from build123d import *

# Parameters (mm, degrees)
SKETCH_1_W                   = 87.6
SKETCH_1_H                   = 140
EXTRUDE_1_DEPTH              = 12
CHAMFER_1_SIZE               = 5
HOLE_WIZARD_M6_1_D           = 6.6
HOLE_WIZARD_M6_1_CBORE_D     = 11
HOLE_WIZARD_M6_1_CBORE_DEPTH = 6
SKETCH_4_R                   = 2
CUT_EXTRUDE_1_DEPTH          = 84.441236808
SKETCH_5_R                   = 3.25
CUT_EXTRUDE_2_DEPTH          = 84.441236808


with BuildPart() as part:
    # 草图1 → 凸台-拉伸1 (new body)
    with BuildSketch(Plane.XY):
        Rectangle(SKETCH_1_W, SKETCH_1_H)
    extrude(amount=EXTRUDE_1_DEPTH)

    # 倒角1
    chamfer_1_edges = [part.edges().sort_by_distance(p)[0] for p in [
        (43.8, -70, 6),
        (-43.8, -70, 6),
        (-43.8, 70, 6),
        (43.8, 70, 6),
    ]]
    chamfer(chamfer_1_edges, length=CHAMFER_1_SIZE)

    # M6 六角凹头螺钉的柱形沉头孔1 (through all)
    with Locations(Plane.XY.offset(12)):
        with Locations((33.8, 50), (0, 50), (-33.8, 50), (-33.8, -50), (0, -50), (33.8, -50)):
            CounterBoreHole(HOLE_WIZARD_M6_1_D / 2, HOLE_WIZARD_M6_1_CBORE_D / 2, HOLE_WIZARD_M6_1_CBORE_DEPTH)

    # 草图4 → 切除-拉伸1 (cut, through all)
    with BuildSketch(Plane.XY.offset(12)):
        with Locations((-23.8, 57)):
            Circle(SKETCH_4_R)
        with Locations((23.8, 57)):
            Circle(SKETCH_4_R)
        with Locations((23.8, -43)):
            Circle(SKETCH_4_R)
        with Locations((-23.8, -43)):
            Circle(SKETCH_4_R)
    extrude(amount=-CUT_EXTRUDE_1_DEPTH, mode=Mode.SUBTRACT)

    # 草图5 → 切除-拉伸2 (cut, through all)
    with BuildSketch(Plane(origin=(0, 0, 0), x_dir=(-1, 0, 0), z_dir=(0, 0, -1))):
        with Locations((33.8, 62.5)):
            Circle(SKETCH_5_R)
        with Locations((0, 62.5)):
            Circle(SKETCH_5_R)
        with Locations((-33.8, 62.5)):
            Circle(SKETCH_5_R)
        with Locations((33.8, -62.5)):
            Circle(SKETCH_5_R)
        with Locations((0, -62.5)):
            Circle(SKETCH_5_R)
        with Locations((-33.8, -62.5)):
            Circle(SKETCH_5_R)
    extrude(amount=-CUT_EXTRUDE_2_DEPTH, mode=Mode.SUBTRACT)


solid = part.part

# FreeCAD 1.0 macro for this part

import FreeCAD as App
import Part
import Sketcher

V = App.Vector


def edges_at(feature, points):
    """Names of the edges that pass closest to the given points."""
    edges = feature.Shape.Edges
    near = lambda p: min(range(len(edges)), key=lambda i: edges[i].distToShape(Part.Vertex(*p))[0])
    return sorted({f"Edge{near(p) + 1}" for p in points})

doc = App.newDocument("Part")
params = doc.addObject("Spreadsheet::Sheet", "Params")
for row, (alias, value) in enumerate([
    ("sketch1_height", "140 mm"),
    ("sketch1_width", "87.6 mm"),
    ("pad1_length", "12 mm"),
    ("chamfer_size", "5 mm"),
    ("sketch2_diameter", "6.6 mm"),
    ("hole_diameter", "6.6 mm"),
    ("hole_cbore_diameter", "11 mm"),
    ("hole_cbore_depth", "6 mm"),
    ("sketch3_diameter", "4 mm"),
    ("sketch4_diameter", "6.5 mm"),
], start=1):
    params.set(f"A{row}", alias)
    params.set(f"B{row}", "=" + value)
    params.setAlias(f"B{row}", alias)

body = doc.addObject("PartDesign::Body", "Body")

# Sketch on XY plane
sketch1 = body.newObject("Sketcher::SketchObject", "Sketch")
sketch1.AttachmentSupport = (doc.getObject("XY_Plane"), [""])
sketch1.MapMode = "FlatFace"
sketch1.addGeometry([
    Part.LineSegment(V(-44, 70, 0), V(-44, -70, 0)),
    Part.LineSegment(V(-44, -70, 0), V(44, -70, 0)),
    Part.LineSegment(V(44, -70, 0), V(44, 70, 0)),
    Part.LineSegment(V(44, 70, 0), V(-44, 70, 0)),
], False)
sketch1.addConstraint([
    Sketcher.Constraint("Coincident", 0, 2, 1, 1),
    Sketcher.Constraint("Coincident", 1, 2, 2, 1),
    Sketcher.Constraint("Coincident", 2, 2, 3, 1),
    Sketcher.Constraint("Coincident", 3, 2, 0, 1),
    Sketcher.Constraint("Vertical", 0),
    Sketcher.Constraint("Horizontal", 1),
    Sketcher.Constraint("Vertical", 2),
    Sketcher.Constraint("Horizontal", 3),
    Sketcher.Constraint("Symmetric", 0, 2, 2, 2, -1, 1),
    Sketcher.Constraint("DistanceY", 0, 2, 0, 1, 140.0),
    Sketcher.Constraint("DistanceX", 1, 1, 1, 2, 87.6),
])
sketch1.setExpression("Constraints[9]", "Params.sketch1_height")
sketch1.setExpression("Constraints[10]", "Params.sketch1_width")
pad1 = body.newObject("PartDesign::Pad", "Pad")
pad1.Profile = sketch1
pad1.setExpression("Length", "Params.pad1_length")
doc.recompute()

chamfer = body.newObject("PartDesign::Chamfer", "Chamfer")
chamfer.Base = (pad1, edges_at(pad1, [
    (43.8, -70, 6),
    (-43.8, -70, 6),
    (-43.8, 70, 6),
    (43.8, 70, 6),
]))
chamfer.setExpression("Size", "Params.chamfer_size")

# Sketch on XY plane
sketch2 = body.newObject("Sketcher::SketchObject", "Sketch001")
sketch2.AttachmentSupport = (doc.getObject("XY_Plane"), [""])
sketch2.MapMode = "FlatFace"
sketch2.AttachmentOffset = App.Placement(V(0, 0, 12), App.Rotation())
sketch2.addGeometry([
    Part.Circle(V(33.8, 50, 0), V(0, 0, 1), 3.3),  # 0
    Part.Circle(V(0, 50, 0), V(0, 0, 1), 3.3),  # 1
    Part.Circle(V(-33.8, 50, 0), V(0, 0, 1), 3.3),  # 2
    Part.Circle(V(-33.8, -50, 0), V(0, 0, 1), 3.3),  # 3
    Part.Circle(V(0, -50, 0), V(0, 0, 1), 3.3),  # 4
    Part.Circle(V(33.8, -50, 0), V(0, 0, 1), 3.3),  # 5
], False)
sketch2.addConstraint([
    Sketcher.Constraint("Equal", 0, 1),
    Sketcher.Constraint("Equal", 1, 2),
    Sketcher.Constraint("Equal", 2, 3),
    Sketcher.Constraint("Equal", 3, 4),
    Sketcher.Constraint("Equal", 4, 5),
    Sketcher.Constraint("Symmetric", 0, 3, 3, 3, -1, 1),
    Sketcher.Constraint("Symmetric", 1, 3, 4, 3, -1, 1),
    Sketcher.Constraint("Symmetric", 2, 3, 5, 3, -1, 1),
    Sketcher.Constraint("Symmetric", 0, 3, 2, 3, -2),
    Sketcher.Constraint("PointOnObject", 1, 3, -2),
    Sketcher.Constraint("Horizontal", 0, 3, 1, 3),
    Sketcher.Constraint("Diameter", 0, 6.6),
    Sketcher.Constraint("DistanceY", -1, 1, 0, 3, 50.0),
    Sketcher.Constraint("DistanceX", -1, 1, 0, 3, 33.8),
])
sketch2.setExpression("Constraints[11]", "Params.sketch2_diameter")
doc.recompute()
hole = body.newObject("PartDesign::Hole", "Hole")
hole.Profile = sketch2
hole.ThreadType = "None"
hole.setExpression("Diameter", "Params.hole_diameter")
hole.DepthType = "ThroughAll"
hole.HoleCutType = "Counterbore"
hole.setExpression("HoleCutDiameter", "Params.hole_cbore_diameter")
hole.setExpression("HoleCutDepth", "Params.hole_cbore_depth")

# Sketch on XY plane
sketch3 = body.newObject("Sketcher::SketchObject", "Sketch002")
sketch3.AttachmentSupport = (doc.getObject("XY_Plane"), [""])
sketch3.MapMode = "FlatFace"
sketch3.AttachmentOffset = App.Placement(V(0, 0, 12), App.Rotation())
sketch3.addGeometry([
    Part.Circle(V(-23.8, 57, 0), V(0, 0, 1), 2),
    Part.Circle(V(23.8, 57, 0), V(0, 0, 1), 2),
    Part.Circle(V(23.8, -43, 0), V(0, 0, 1), 2),
    Part.Circle(V(-23.8, -43, 0), V(0, 0, 1), 2),
], False)
sketch3.addConstraint([
    Sketcher.Constraint("Equal", 0, 1),
    Sketcher.Constraint("Equal", 1, 2),
    Sketcher.Constraint("Equal", 2, 3),
    Sketcher.Constraint("Symmetric", 0, 3, 1, 3, -2),
    Sketcher.Constraint("Symmetric", 2, 3, 3, 3, -2),
    Sketcher.Constraint("Vertical", 1, 3, 2, 3),
    Sketcher.Constraint("Diameter", 0, 4.0),
    Sketcher.Constraint("DistanceY", -1, 1, 0, 3, 57.0),
    Sketcher.Constraint("DistanceY", 2, 3, -1, 1, 43.0),
    Sketcher.Constraint("DistanceX", 0, 3, -1, 1, 23.8),
])
sketch3.setExpression("Constraints[6]", "Params.sketch3_diameter")
pocket1 = body.newObject("PartDesign::Pocket", "Pocket")
pocket1.Profile = sketch3
pocket1.Type = "ThroughAll"

# Sketch on XY plane
sketch4 = body.newObject("Sketcher::SketchObject", "Sketch003")
sketch4.AttachmentSupport = (doc.getObject("XY_Plane"), [""])
sketch4.MapMode = "FlatFace"
sketch4.addGeometry([
    Part.Circle(V(-33.8, 62.5, 0), V(0, 0, 1), 3.2),  # 0
    Part.Circle(V(0, 62.5, 0), V(0, 0, 1), 3.2),  # 1
    Part.Circle(V(33.8, 62.5, 0), V(0, 0, 1), 3.2),  # 2
    Part.Circle(V(-33.8, -62.5, 0), V(0, 0, 1), 3.2),  # 3
    Part.Circle(V(0, -62.5, 0), V(0, 0, 1), 3.2),  # 4
    Part.Circle(V(33.8, -62.5, 0), V(0, 0, 1), 3.2),  # 5
], False)
sketch4.addConstraint([
    Sketcher.Constraint("Equal", 0, 1),
    Sketcher.Constraint("Equal", 1, 2),
    Sketcher.Constraint("Equal", 2, 3),
    Sketcher.Constraint("Equal", 3, 4),
    Sketcher.Constraint("Equal", 4, 5),
    Sketcher.Constraint("Symmetric", 2, 3, 3, 3, -1, 1),
    Sketcher.Constraint("Symmetric", 1, 3, 4, 3, -1, 1),
    Sketcher.Constraint("Symmetric", 0, 3, 5, 3, -1, 1),
    Sketcher.Constraint("Symmetric", 0, 3, 2, 3, -2),
    Sketcher.Constraint("PointOnObject", 1, 3, -2),
    Sketcher.Constraint("Horizontal", 0, 3, 1, 3),
    Sketcher.Constraint("Diameter", 0, 6.5),
    Sketcher.Constraint("DistanceY", 3, 3, 0, 3, 125.0),
    Sketcher.Constraint("DistanceX", 0, 3, -1, 1, 33.8),
])
sketch4.setExpression("Constraints[11]", "Params.sketch4_diameter")
pocket2 = body.newObject("PartDesign::Pocket", "Pocket001")
pocket2.Profile = sketch4
pocket2.Type = "ThroughAll"
pocket2.Reversed = True

doc.recompute()
